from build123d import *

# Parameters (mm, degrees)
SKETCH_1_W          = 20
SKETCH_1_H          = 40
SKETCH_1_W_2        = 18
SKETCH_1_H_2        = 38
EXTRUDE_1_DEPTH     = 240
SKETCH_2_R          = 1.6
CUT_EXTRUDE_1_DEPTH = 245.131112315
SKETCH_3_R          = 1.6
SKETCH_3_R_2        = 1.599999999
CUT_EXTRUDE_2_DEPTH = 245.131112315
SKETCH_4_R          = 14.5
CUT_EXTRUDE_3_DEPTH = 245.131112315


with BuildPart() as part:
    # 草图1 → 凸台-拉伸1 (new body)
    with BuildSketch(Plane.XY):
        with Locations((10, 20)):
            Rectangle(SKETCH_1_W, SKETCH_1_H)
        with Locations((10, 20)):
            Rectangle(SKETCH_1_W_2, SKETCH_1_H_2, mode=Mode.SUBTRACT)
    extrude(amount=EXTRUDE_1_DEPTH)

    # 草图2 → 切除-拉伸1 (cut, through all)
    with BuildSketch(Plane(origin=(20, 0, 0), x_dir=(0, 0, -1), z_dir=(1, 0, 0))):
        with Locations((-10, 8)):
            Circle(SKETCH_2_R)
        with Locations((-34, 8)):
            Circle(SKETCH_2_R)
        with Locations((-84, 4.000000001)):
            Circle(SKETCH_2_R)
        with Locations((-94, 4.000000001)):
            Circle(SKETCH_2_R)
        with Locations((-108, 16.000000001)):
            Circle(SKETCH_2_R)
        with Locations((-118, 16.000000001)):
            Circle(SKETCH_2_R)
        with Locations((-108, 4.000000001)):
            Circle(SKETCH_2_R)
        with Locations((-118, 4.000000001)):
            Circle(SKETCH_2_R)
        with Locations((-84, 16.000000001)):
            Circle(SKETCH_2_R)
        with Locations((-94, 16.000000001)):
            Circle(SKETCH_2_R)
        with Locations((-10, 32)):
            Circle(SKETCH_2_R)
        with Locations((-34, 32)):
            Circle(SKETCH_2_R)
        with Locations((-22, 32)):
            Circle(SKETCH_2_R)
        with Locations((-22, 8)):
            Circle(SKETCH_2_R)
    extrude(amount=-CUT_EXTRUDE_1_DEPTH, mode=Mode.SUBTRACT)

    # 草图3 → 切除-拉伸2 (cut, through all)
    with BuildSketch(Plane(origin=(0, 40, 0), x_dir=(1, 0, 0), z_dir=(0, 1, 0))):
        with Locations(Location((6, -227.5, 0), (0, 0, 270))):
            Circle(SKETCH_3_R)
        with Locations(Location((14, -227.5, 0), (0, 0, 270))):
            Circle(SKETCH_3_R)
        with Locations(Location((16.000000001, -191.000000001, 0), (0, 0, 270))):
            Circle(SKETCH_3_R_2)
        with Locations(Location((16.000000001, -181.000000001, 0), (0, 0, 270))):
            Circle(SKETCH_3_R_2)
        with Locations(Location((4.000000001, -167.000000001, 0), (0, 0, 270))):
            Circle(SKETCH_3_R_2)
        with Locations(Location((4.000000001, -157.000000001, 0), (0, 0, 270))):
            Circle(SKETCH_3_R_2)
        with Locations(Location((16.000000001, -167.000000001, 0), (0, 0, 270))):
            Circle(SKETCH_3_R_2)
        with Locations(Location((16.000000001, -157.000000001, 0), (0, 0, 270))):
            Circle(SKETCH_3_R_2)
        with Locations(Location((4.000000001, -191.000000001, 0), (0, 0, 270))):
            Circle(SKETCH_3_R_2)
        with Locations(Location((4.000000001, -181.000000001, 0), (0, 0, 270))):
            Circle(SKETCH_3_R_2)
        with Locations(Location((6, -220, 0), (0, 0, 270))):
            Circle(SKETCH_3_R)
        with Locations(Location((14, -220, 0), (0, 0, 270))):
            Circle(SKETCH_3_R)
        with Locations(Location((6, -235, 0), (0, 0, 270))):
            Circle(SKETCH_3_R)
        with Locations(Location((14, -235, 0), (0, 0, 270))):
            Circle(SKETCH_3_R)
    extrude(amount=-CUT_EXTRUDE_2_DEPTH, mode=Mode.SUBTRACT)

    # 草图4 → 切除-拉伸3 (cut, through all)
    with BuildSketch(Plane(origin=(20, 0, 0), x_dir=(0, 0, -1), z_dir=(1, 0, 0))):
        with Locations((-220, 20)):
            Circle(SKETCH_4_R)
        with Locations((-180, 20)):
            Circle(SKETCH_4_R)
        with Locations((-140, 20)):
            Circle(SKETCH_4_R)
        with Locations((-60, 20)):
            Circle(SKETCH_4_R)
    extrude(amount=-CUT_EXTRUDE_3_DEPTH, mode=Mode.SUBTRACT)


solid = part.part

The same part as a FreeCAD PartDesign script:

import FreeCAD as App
import Part
import Sketcher
from FreeCAD import Vector


def add_polygon(sketch, points):
    """Adds a closed chain of lines whose ends are joined by coincident constraints."""
    first, n = sketch.GeometryCount, len(points)
    for a, b in zip(points, points[1:] + points[:1]):
        sketch.addGeometry(Part.LineSegment(App.Vector(*a, 0), App.Vector(*b, 0)), False)
    for i in range(n):
        sketch.addConstraint(Sketcher.Constraint("Coincident", first + i, 2, first + (i + 1) % n, 1))

doc = App.newDocument("Part")
body = doc.addObject("PartDesign::Body", "Body")

sketch1 = doc.addObject("Sketcher::SketchObject", "Sketch")
body.addObject(sketch1)
sketch1.AttachmentSupport = (doc.XY_Plane, [""])
sketch1.MapMode = "FlatFace"
add_polygon(sketch1, [(0, 40), (0, 0), (20, 0), (20, 40)])
add_polygon(sketch1, [(19, 1), (1, 1), (1, 39), (19, 39)])
sketch1.addConstraint([
    Sketcher.Constraint("Vertical", 0),
    Sketcher.Constraint("Horizontal", 1),
    Sketcher.Constraint("Vertical", 2),
    Sketcher.Constraint("Horizontal", 3),
    Sketcher.Constraint("Horizontal", 4),
    Sketcher.Constraint("Vertical", 5),
    Sketcher.Constraint("Horizontal", 6),
    Sketcher.Constraint("Vertical", 7),
    Sketcher.Constraint("Coincident", 0, 2, -1, 1),
    Sketcher.Constraint("DistanceX", 1, 1, 1, 2, 20.0),
    Sketcher.Constraint("DistanceX", 4, 2, 4, 1, 18.0),
    Sketcher.Constraint("DistanceY", 0, 2, 0, 1, 40.0),
    Sketcher.Constraint("DistanceY", 5, 1, 5, 2, 38.0),
    Sketcher.Constraint("DistanceX", -1, 1, 4, 2, 1.0),
    Sketcher.Constraint("DistanceY", -1, 1, 4, 2, 1.0),
])
pad1 = doc.addObject("PartDesign::Pad", "Pad")
body.addObject(pad1)
pad1.Profile = sketch1
pad1.Length = 240

sketch2 = doc.addObject("Sketcher::SketchObject", "Sketch001")
body.addObject(sketch2)
sketch2.AttachmentSupport = (doc.YZ_Plane, [""])
sketch2.MapMode = "FlatFace"
sketch2.AttachmentOffset = App.Placement(Vector(0, 0, 20), App.Rotation())
sketch2.addGeometry([
    Part.Circle(Vector(8, 10, 0), Vector(0, 0, 1), 1.6),
    Part.Circle(Vector(8, 34, 0), Vector(0, 0, 1), 1.6),
    Part.Circle(Vector(4, 84, 0), Vector(0, 0, 1), 1.6),
    Part.Circle(Vector(4, 94, 0), Vector(0, 0, 1), 1.6),
    Part.Circle(Vector(16, 108, 0), Vector(0, 0, 1), 1.6),
    Part.Circle(Vector(16, 118, 0), Vector(0, 0, 1), 1.6),
    Part.Circle(Vector(4, 108, 0), Vector(0, 0, 1), 1.6),
    Part.Circle(Vector(4, 118, 0), Vector(0, 0, 1), 1.6),
    Part.Circle(Vector(16, 84, 0), Vector(0, 0, 1), 1.6),
    Part.Circle(Vector(16, 94, 0), Vector(0, 0, 1), 1.6),
    Part.Circle(Vector(32, 10, 0), Vector(0, 0, 1), 1.6),
    Part.Circle(Vector(32, 34, 0), Vector(0, 0, 1), 1.6),
    Part.Circle(Vector(32, 22, 0), Vector(0, 0, 1), 1.6),
    Part.Circle(Vector(8, 22, 0), Vector(0, 0, 1), 1.6),
], False)
sketch2.addConstraint([
    Sketcher.Constraint("Equal", 0, 1),
    Sketcher.Constraint("Equal", 1, 2),
    Sketcher.Constraint("Equal", 2, 3),
    Sketcher.Constraint("Equal", 3, 4),
    Sketcher.Constraint("Equal", 4, 5),
    Sketcher.Constraint("Equal", 5, 6),
    Sketcher.Constraint("Equal", 6, 7),
    Sketcher.Constraint("Equal", 7, 8),
    Sketcher.Constraint("Equal", 8, 9),
    Sketcher.Constraint("Equal", 9, 10),
    Sketcher.Constraint("Equal", 10, 11),
    Sketcher.Constraint("Equal", 11, 12),
    Sketcher.Constraint("Equal", 12, 13),
    Sketcher.Constraint("Horizontal", 4, 3, 6, 3),
    Sketcher.Constraint("Horizontal", 5, 3, 7, 3),
    Sketcher.Constraint("Horizontal", 2, 3, 8, 3),
    Sketcher.Constraint("Horizontal", 3, 3, 9, 3),
    Sketcher.Constraint("Horizontal", 0, 3, 10, 3),
    Sketcher.Constraint("Horizontal", 1, 3, 11, 3),
    Sketcher.Constraint("Horizontal", 12, 3, 13, 3),
    Sketcher.Constraint("Vertical", 0, 3, 1, 3),
    Sketcher.Constraint("Vertical", 2, 3, 3, 3),
    Sketcher.Constraint("Vertical", 4, 3, 5, 3),
    Sketcher.Constraint("Vertical", 3, 3, 6, 3),
    Sketcher.Constraint("Vertical", 6, 3, 7, 3),
    Sketcher.Constraint("Vertical", 5, 3, 8, 3),
    Sketcher.Constraint("Vertical", 8, 3, 9, 3),
    Sketcher.Constraint("Vertical", 10, 3, 11, 3),
    Sketcher.Constraint("Vertical", 11, 3, 12, 3),
    Sketcher.Constraint("Vertical", 1, 3, 13, 3),
    Sketcher.Constraint("Diameter", 0, 3.2),
    Sketcher.Constraint("DistanceX", -1, 1, 0, 3, 8.0),
    Sketcher.Constraint("DistanceY", -1, 1, 0, 3, 10.0),
    Sketcher.Constraint("DistanceY", -1, 1, 1, 3, 34.0),
    Sketcher.Constraint("DistanceX", -1, 1, 2, 3, 4.0),
    Sketcher.Constraint("DistanceY", -1, 1, 2, 3, 84.0),
    Sketcher.Constraint("DistanceY", -1, 1, 3, 3, 94.0),
    Sketcher.Constraint("DistanceX", -1, 1, 4, 3, 16.0),
    Sketcher.Constraint("DistanceY", -1, 1, 4, 3, 108.0),
    Sketcher.Constraint("DistanceY", -1, 1, 5, 3, 118.0),
    Sketcher.Constraint("DistanceX", -1, 1, 10, 3, 32.0),
    Sketcher.Constraint("DistanceY", -1, 1, 12, 3, 22.0),
])
pocket1 = doc.addObject("PartDesign::Pocket", "Pocket")
body.addObject(pocket1)
pocket1.Profile = sketch2
pocket1.Type = "ThroughAll"

sketch3 = doc.addObject("Sketcher::SketchObject", "Sketch002")
body.addObject(sketch3)
sketch3.AttachmentSupport = (doc.XZ_Plane, [""])
sketch3.MapMode = "FlatFace"
sketch3.AttachmentOffset = App.Placement(Vector(0, 0, -40), App.Rotation())
sketch3.addGeometry([
    Part.Circle(Vector(6, 227.5, 0), Vector(0, 0, 1), 1.6),
    Part.Circle(Vector(14, 227.5, 0), Vector(0, 0, 1), 1.6),
    Part.Circle(Vector(16, 191, 0), Vector(0, 0, 1), 1.6),
    Part.Circle(Vector(16, 181, 0), Vector(0, 0, 1), 1.6),
    Part.Circle(Vector(4, 167, 0), Vector(0, 0, 1), 1.6),
    Part.Circle(Vector(4, 157, 0), Vector(0, 0, 1), 1.6),
    Part.Circle(Vector(16, 167, 0), Vector(0, 0, 1), 1.6),
    Part.Circle(Vector(16, 157, 0), Vector(0, 0, 1), 1.6),
    Part.Circle(Vector(4, 191, 0), Vector(0, 0, 1), 1.6),
    Part.Circle(Vector(4, 181, 0), Vector(0, 0, 1), 1.6),
    Part.Circle(Vector(6, 220, 0), Vector(0, 0, 1), 1.6),
    Part.Circle(Vector(14, 220, 0), Vector(0, 0, 1), 1.6),
    Part.Circle(Vector(6, 235, 0), Vector(0, 0, 1), 1.6),
    Part.Circle(Vector(14, 235, 0), Vector(0, 0, 1), 1.6),
], False)
sketch3.addConstraint([
    Sketcher.Constraint("Equal", 0, 1),
    Sketcher.Constraint("Equal", 1, 2),
    Sketcher.Constraint("Equal", 2, 3),
    Sketcher.Constraint("Equal", 3, 4),
    Sketcher.Constraint("Equal", 4, 5),
    Sketcher.Constraint("Equal", 5, 6),
    Sketcher.Constraint("Equal", 6, 7),
    Sketcher.Constraint("Equal", 7, 8),
    Sketcher.Constraint("Equal", 8, 9),
    Sketcher.Constraint("Equal", 9, 10),
    Sketcher.Constraint("Equal", 10, 11),
    Sketcher.Constraint("Equal", 11, 12),
    Sketcher.Constraint("Equal", 12, 13),
    Sketcher.Constraint("Horizontal", 0, 3, 1, 3),
    Sketcher.Constraint("Horizontal", 4, 3, 6, 3),
    Sketcher.Constraint("Horizontal", 5, 3, 7, 3),
    Sketcher.Constraint("Horizontal", 2, 3, 8, 3),
    Sketcher.Constraint("Horizontal", 3, 3, 9, 3),
    Sketcher.Constraint("Horizontal", 10, 3, 11, 3),
    Sketcher.Constraint("Horizontal", 12, 3, 13, 3),
    Sketcher.Constraint("Vertical", 2, 3, 3, 3),
    Sketcher.Constraint("Vertical", 4, 3, 5, 3),
    Sketcher.Constraint("Vertical", 3, 3, 6, 3),
    Sketcher.Constraint("Vertical", 6, 3, 7, 3),
    Sketcher.Constraint("Vertical", 5, 3, 8, 3),
    Sketcher.Constraint("Vertical", 8, 3, 9, 3),
    Sketcher.Constraint("Vertical", 0, 3, 10, 3),
    Sketcher.Constraint("Vertical", 1, 3, 11, 3),
    Sketcher.Constraint("Vertical", 10, 3, 12, 3),
    Sketcher.Constraint("Vertical", 11, 3, 13, 3),
    Sketcher.Constraint("Diameter", 0, 3.2),
    Sketcher.Constraint("DistanceX", -1, 1, 0, 3, 6.0),
    Sketcher.Constraint("DistanceX", -1, 1, 1, 3, 14.0),
    Sketcher.Constraint("DistanceX", -1, 1, 2, 3, 16.0),
    Sketcher.Constraint("DistanceY", -1, 1, 2, 3, 191.0),
    Sketcher.Constraint("DistanceY", -1, 1, 3, 3, 181.0),
    Sketcher.Constraint("DistanceX", -1, 1, 4, 3, 4.0),
    Sketcher.Constraint("DistanceY", -1, 1, 4, 3, 167.0),
    Sketcher.Constraint("DistanceY", -1, 1, 5, 3, 157.0),
    Sketcher.Constraint("DistanceY", -1, 1, 10, 3, 220.0),
    Sketcher.Constraint("DistanceY", -1, 1, 12, 3, 235.0),
    Sketcher.Constraint("DistanceY", -1, 1, 0, 3, 227.5),
])
pocket2 = doc.addObject("PartDesign::Pocket", "Pocket001")
body.addObject(pocket2)
pocket2.Profile = sketch3
pocket2.Type = "ThroughAll"
pocket2.Reversed = True

sketch4 = doc.addObject("Sketcher::SketchObject", "Sketch003")
body.addObject(sketch4)
sketch4.AttachmentSupport = (doc.YZ_Plane, [""])
sketch4.MapMode = "FlatFace"
sketch4.AttachmentOffset = App.Placement(Vector(0, 0, 20), App.Rotation())
sketch4.addGeometry([
    Part.Circle(Vector(20, 220, 0), Vector(0, 0, 1), 14),
    Part.Circle(Vector(20, 180, 0), Vector(0, 0, 1), 14),
    Part.Circle(Vector(20, 140, 0), Vector(0, 0, 1), 14),
    Part.Circle(Vector(20, 60, 0), Vector(0, 0, 1), 14),
], False)
sketch4.addConstraint([
    Sketcher.Constraint("Equal", 0, 1),
    Sketcher.Constraint("Equal", 1, 2),
    Sketcher.Constraint("Equal", 2, 3),
    Sketcher.Constraint("Vertical", 0, 3, 1, 3),
    Sketcher.Constraint("Vertical", 1, 3, 2, 3),
    Sketcher.Constraint("Vertical", 2, 3, 3, 3),
    Sketcher.Constraint("Diameter", 0, 29.0),
    Sketcher.Constraint("DistanceX", -1, 1, 0, 3, 20.0),
    Sketcher.Constraint("DistanceY", -1, 1, 0, 3, 220.0),
    Sketcher.Constraint("DistanceY", -1, 1, 1, 3, 180.0),
    Sketcher.Constraint("DistanceY", -1, 1, 2, 3, 140.0),
    Sketcher.Constraint("DistanceY", -1, 1, 3, 3, 60.0),
])
pocket3 = doc.addObject("PartDesign::Pocket", "Pocket002")
body.addObject(pocket3)
pocket3.Profile = sketch4
pocket3.Type = "ThroughAll"

doc.recompute()
